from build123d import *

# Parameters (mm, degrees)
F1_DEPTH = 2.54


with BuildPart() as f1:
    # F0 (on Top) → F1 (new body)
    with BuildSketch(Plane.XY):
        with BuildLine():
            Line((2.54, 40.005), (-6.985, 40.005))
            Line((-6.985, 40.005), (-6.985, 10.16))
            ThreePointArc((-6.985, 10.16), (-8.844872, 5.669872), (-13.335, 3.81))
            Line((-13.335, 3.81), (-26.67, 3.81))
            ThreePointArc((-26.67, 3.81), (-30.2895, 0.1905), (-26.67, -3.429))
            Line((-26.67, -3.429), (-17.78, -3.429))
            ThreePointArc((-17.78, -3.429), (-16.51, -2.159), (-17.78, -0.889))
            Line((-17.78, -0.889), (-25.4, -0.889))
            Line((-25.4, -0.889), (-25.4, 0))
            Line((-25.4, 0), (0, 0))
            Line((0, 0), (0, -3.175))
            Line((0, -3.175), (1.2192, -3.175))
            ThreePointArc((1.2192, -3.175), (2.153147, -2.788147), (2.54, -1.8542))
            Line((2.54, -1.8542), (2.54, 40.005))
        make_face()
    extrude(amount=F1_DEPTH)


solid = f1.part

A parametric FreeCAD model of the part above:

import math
import FreeCAD as App
import Part
import Sketcher
Q = App.Units.Quantity

doc = App.newDocument("Part")
body = doc.addObject("PartDesign::Body", "Body")

# Sketch on XY plane
sketch1 = body.newObject("Sketcher::SketchObject", "Sketch")
sketch1.AttachmentSupport = (doc.getObject("XY_Plane"), [""])
sketch1.MapMode = "FlatFace"
sketch1.addGeometry(Part.LineSegment(App.Vector(2.5, 40, 0), App.Vector(-7, 40, 0)), False)
sketch1.addGeometry(Part.LineSegment(App.Vector(-7, 40, 0), App.Vector(-7, 10.2, 0)), False)
sketch1.addGeometry(Part.ArcOfCircle(Part.Circle(App.Vector(-13.3, 10.2, 0), App.Vector(0, 0, 1), 6.4), math.radians(-90), math.radians(0)), False)
sketch1.addGeometry(Part.LineSegment(App.Vector(-13.3, 3.8, 0), App.Vector(-26.7, 3.8, 0)), False)
sketch1.addGeometry(Part.ArcOfCircle(Part.Circle(App.Vector(-26.7, 0.2, 0), App.Vector(0, 0, 1), 3.6), math.radians(90), math.radians(270)), False)
sketch1.addGeometry(Part.LineSegment(App.Vector(-26.7, -3.4, 0), App.Vector(-17.8, -3.4, 0)), False)
sketch1.addGeometry(Part.ArcOfCircle(Part.Circle(App.Vector(-17.8, -2.2, 0), App.Vector(0, 0, 1), 1.3), math.radians(-90), math.radians(90)), False)
sketch1.addGeometry(Part.LineSegment(App.Vector(-17.8, -0.9, 0), App.Vector(-25.4, -0.9, 0)), False)
sketch1.addGeometry(Part.LineSegment(App.Vector(-25.4, -0.9, 0), App.Vector(-25.4, 0, 0)), False)
sketch1.addGeometry(Part.LineSegment(App.Vector(-25.4, 0, 0), App.Vector(0, 0, 0)), False)
sketch1.addGeometry(Part.LineSegment(App.Vector(0, 0, 0), App.Vector(0, -3.2, 0)), False)
sketch1.addGeometry(Part.LineSegment(App.Vector(0, -3.2, 0), App.Vector(1.2, -3.2, 0)), False)
sketch1.addGeometry(Part.ArcOfCircle(Part.Circle(App.Vector(1.2, -1.9, 0), App.Vector(0, 0, 1), 1.3), math.radians(-90), math.radians(0)), False)
sketch1.addGeometry(Part.LineSegment(App.Vector(2.5, -1.9, 0), App.Vector(2.5, 40, 0)), False)
sketch1.addConstraint(Sketcher.Constraint("Coincident", 0, 2, 1, 1))
sketch1.addConstraint(Sketcher.Constraint("Tangent", 1, 2, 2, 2))
sketch1.addConstraint(Sketcher.Constraint("Tangent", 2, 1, 3, 1))
sketch1.addConstraint(Sketcher.Constraint("Tangent", 3, 2, 4, 1))
sketch1.addConstraint(Sketcher.Constraint("Tangent", 4, 2, 5, 1))
sketch1.addConstraint(Sketcher.Constraint("Tangent", 5, 2, 6, 1))
sketch1.addConstraint(Sketcher.Constraint("Tangent", 6, 2, 7, 1))
sketch1.addConstraint(Sketcher.Constraint("Coincident", 7, 2, 8, 1))
sketch1.addConstraint(Sketcher.Constraint("Coincident", 8, 2, 9, 1))
sketch1.addConstraint(Sketcher.Constraint("Coincident", 9, 2, 10, 1))
sketch1.addConstraint(Sketcher.Constraint("Coincident", 10, 2, 11, 1))
sketch1.addConstraint(Sketcher.Constraint("Tangent", 11, 2, 12, 1))
sketch1.addConstraint(Sketcher.Constraint("Tangent", 12, 2, 13, 1))
sketch1.addConstraint(Sketcher.Constraint("Coincident", 13, 2, 0, 1))
sketch1.addConstraint(Sketcher.Constraint("Horizontal", 0))
sketch1.addConstraint(Sketcher.Constraint("Vertical", 1))
sketch1.addConstraint(Sketcher.Constraint("Horizontal", 3))
sketch1.addConstraint(Sketcher.Constraint("Horizontal", 5))
sketch1.addConstraint(Sketcher.Constraint("Horizontal", 7))
sketch1.addConstraint(Sketcher.Constraint("Vertical", 8))
sketch1.addConstraint(Sketcher.Constraint("Horizontal", 9))
sketch1.addConstraint(Sketcher.Constraint("Vertical", 10))
sketch1.addConstraint(Sketcher.Constraint("Horizontal", 11))
sketch1.addConstraint(Sketcher.Constraint("Vertical", 13))
sketch1.addConstraint(Sketcher.Constraint("Coincident", 9, 2, -1, 1))
sketch1.addConstraint(Sketcher.Constraint("DistanceX", 9, 1, 9, 2, Q("1 in")))
sketch1.addConstraint(Sketcher.Constraint("Radius", 2, Q("0.25 in")))
sketch1.addConstraint(Sketcher.Constraint("Radius", 6, Q("0.05 in")))
sketch1.addConstraint(Sketcher.Constraint("DistanceX", 7, 2, 7, 1, Q("0.3 in")))
sketch1.addConstraint(Sketcher.Constraint("Radius", 12, Q("0.052 in")))
sketch1.addConstraint(Sketcher.Constraint("DistanceX", 5, 1, 5, 2, Q("0.35 in")))
sketch1.addConstraint(Sketcher.Constraint("DistanceY", -1, 1, 2, 3, Q("0.4 in")))
sketch1.addConstraint(Sketcher.Constraint("DistanceX", -1, 1, 12, 2, Q("0.1 in")))
sketch1.addConstraint(Sketcher.Constraint("Radius", 4, Q("0.1425 in")))
sketch1.addConstraint(Sketcher.Constraint("DistanceX", 0, 2, 0, 1, Q("0.375 in")))
sketch1.addConstraint(Sketcher.Constraint("DistanceY", 1, 2, 1, 1, Q("1.175 in")))
sketch1.addConstraint(Sketcher.Constraint("DistanceY", 10, 2, 10, 1, Q("0.125 in")))
pad1 = body.newObject("PartDesign::Pad", "Pad")
pad1.Profile = sketch1
pad1.Length = Q("0.1 in")

doc.recompute()
